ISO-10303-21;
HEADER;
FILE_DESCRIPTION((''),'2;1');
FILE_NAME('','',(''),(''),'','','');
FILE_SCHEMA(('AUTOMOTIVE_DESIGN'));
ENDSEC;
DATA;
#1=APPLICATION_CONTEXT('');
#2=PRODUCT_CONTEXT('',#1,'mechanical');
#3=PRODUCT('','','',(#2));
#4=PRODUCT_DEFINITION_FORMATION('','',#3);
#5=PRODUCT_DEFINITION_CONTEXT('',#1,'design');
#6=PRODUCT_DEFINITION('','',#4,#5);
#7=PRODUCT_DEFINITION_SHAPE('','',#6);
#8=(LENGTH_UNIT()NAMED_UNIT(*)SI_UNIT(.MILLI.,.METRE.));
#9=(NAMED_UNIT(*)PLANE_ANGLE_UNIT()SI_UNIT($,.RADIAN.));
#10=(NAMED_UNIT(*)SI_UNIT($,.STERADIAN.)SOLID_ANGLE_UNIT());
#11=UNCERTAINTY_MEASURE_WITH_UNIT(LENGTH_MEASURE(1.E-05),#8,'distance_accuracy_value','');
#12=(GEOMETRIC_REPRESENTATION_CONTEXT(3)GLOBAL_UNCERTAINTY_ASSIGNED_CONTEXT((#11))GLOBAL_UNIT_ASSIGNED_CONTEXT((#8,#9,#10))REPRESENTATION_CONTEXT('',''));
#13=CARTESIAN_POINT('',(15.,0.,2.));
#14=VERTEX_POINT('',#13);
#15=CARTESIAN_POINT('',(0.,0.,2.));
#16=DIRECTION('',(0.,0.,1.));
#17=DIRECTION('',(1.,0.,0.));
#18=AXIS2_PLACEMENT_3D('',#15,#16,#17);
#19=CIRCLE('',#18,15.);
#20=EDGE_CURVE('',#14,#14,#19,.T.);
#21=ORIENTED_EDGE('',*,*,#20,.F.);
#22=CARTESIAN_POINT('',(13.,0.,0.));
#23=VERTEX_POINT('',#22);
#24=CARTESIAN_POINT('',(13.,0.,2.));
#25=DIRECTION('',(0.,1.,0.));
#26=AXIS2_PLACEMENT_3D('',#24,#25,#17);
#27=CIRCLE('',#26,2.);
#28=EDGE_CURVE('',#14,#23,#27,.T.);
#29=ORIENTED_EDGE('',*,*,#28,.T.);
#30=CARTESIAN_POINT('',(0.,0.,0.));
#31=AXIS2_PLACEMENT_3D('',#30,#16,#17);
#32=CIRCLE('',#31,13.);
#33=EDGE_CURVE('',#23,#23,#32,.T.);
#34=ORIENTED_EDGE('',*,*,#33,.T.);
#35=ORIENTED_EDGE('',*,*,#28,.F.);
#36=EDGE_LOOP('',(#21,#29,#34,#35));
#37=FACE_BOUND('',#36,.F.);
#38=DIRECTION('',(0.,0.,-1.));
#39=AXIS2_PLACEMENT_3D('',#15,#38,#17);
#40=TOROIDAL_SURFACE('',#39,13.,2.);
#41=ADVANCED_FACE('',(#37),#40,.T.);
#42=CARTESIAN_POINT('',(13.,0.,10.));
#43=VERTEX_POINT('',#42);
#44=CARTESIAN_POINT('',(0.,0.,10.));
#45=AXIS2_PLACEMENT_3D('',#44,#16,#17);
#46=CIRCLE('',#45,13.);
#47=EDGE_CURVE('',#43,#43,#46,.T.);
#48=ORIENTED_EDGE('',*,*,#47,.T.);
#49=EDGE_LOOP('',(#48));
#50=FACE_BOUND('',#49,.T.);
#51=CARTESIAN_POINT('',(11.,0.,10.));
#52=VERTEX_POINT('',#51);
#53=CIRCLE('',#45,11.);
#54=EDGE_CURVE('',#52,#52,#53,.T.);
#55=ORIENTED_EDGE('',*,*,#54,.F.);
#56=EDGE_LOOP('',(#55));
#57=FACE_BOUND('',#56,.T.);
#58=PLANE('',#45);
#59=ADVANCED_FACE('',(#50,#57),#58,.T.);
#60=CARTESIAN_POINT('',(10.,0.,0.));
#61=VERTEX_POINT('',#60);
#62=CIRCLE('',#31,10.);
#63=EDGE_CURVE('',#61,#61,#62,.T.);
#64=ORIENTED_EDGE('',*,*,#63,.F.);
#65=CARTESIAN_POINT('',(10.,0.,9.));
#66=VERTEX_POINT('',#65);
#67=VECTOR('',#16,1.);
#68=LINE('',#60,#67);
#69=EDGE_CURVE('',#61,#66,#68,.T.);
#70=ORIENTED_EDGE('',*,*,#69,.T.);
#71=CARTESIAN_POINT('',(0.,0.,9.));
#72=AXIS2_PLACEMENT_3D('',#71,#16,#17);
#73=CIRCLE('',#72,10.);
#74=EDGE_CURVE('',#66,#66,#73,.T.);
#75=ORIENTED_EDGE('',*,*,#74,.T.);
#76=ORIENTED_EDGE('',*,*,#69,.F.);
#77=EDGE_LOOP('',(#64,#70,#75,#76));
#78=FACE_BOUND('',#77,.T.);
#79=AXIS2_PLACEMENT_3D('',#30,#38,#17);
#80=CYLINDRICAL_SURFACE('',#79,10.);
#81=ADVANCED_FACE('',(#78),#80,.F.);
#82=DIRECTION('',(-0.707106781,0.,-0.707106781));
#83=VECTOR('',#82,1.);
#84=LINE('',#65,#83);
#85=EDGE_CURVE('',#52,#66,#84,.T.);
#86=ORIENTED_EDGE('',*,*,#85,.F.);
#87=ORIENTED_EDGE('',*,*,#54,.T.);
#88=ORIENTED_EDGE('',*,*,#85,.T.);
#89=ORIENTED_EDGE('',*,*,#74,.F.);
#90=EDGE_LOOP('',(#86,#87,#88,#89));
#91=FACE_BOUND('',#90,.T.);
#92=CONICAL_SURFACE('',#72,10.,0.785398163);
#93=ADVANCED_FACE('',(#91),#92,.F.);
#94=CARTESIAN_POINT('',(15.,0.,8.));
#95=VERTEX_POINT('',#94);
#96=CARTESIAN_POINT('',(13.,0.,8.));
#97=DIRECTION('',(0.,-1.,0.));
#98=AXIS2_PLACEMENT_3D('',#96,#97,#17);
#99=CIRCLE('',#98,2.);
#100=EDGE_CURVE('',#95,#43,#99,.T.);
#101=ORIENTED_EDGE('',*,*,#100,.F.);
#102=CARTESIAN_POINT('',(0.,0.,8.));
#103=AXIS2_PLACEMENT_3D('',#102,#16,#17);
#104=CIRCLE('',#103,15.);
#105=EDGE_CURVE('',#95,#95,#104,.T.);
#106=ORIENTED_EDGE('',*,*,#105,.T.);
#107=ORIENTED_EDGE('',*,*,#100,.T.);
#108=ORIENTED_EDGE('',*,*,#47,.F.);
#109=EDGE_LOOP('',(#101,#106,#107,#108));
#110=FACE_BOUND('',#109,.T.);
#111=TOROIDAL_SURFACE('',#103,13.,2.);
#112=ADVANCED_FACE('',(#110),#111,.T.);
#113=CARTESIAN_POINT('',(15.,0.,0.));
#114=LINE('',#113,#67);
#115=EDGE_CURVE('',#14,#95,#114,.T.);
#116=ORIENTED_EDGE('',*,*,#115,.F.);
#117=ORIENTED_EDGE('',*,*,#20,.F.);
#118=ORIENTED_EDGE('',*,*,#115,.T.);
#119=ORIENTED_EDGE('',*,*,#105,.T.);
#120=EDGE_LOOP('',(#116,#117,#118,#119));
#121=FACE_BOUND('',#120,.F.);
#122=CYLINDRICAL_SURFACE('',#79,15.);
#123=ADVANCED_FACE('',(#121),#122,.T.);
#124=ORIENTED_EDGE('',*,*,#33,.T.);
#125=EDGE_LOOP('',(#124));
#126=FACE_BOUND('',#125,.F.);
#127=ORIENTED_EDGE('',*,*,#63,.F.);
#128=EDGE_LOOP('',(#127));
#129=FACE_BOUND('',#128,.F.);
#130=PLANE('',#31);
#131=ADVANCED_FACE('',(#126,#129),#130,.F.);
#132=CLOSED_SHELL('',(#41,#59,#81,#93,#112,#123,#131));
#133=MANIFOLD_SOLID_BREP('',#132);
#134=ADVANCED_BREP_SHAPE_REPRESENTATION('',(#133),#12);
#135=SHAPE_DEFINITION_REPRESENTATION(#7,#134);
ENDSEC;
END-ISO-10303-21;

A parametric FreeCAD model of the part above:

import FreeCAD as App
import Part
import Sketcher
from FreeCAD import Vector


def edges_at(feature, points):
    """Names of the edges that pass closest to the given points."""
    edges = feature.Shape.Edges
    near = lambda p: min(range(len(edges)), key=lambda i: edges[i].distToShape(Part.Vertex(*p))[0])
    return sorted({f"Edge{near(p) + 1}" for p in points})

doc = App.newDocument("Part")
body = doc.addObject("PartDesign::Body", "Body")

sketch1 = doc.addObject("Sketcher::SketchObject", "Sketch")
body.addObject(sketch1)
sketch1.AttachmentSupport = (doc.XY_Plane, [""])
sketch1.MapMode = "FlatFace"
sketch1.addGeometry([
    Part.Circle(Vector(0, 0, 0), Vector(0, 0, 1), 15),
    Part.Circle(Vector(0, 0, 0), Vector(0, 0, 1), 10),
], False)
sketch1.addConstraint([
    Sketcher.Constraint("Coincident", 0, 3, -1, 1),
    Sketcher.Constraint("Coincident", 1, 3, -1, 1),
    Sketcher.Constraint("Diameter", 0, 30.0),
    Sketcher.Constraint("Diameter", 1, 20.0),
])
pad1 = doc.addObject("PartDesign::Pad", "Pad")
body.addObject(pad1)
pad1.Profile = sketch1
pad1.Length = 10
doc.recompute()

fillet = doc.addObject("PartDesign::Fillet", "Fillet")
body.addObject(fillet)
fillet.Base = (pad1, edges_at(pad1, [(-13.985, -5.424, 10), (-13.985, -5.424, 0)]))
fillet.Radius = 2
doc.recompute()

chamfer = doc.addObject("PartDesign::Chamfer", "Chamfer")
body.addObject(chamfer)
chamfer.Base = (fillet, edges_at(fillet, [(-9.323, 3.616, 10)]))
chamfer.Size = 1

doc.recompute()
